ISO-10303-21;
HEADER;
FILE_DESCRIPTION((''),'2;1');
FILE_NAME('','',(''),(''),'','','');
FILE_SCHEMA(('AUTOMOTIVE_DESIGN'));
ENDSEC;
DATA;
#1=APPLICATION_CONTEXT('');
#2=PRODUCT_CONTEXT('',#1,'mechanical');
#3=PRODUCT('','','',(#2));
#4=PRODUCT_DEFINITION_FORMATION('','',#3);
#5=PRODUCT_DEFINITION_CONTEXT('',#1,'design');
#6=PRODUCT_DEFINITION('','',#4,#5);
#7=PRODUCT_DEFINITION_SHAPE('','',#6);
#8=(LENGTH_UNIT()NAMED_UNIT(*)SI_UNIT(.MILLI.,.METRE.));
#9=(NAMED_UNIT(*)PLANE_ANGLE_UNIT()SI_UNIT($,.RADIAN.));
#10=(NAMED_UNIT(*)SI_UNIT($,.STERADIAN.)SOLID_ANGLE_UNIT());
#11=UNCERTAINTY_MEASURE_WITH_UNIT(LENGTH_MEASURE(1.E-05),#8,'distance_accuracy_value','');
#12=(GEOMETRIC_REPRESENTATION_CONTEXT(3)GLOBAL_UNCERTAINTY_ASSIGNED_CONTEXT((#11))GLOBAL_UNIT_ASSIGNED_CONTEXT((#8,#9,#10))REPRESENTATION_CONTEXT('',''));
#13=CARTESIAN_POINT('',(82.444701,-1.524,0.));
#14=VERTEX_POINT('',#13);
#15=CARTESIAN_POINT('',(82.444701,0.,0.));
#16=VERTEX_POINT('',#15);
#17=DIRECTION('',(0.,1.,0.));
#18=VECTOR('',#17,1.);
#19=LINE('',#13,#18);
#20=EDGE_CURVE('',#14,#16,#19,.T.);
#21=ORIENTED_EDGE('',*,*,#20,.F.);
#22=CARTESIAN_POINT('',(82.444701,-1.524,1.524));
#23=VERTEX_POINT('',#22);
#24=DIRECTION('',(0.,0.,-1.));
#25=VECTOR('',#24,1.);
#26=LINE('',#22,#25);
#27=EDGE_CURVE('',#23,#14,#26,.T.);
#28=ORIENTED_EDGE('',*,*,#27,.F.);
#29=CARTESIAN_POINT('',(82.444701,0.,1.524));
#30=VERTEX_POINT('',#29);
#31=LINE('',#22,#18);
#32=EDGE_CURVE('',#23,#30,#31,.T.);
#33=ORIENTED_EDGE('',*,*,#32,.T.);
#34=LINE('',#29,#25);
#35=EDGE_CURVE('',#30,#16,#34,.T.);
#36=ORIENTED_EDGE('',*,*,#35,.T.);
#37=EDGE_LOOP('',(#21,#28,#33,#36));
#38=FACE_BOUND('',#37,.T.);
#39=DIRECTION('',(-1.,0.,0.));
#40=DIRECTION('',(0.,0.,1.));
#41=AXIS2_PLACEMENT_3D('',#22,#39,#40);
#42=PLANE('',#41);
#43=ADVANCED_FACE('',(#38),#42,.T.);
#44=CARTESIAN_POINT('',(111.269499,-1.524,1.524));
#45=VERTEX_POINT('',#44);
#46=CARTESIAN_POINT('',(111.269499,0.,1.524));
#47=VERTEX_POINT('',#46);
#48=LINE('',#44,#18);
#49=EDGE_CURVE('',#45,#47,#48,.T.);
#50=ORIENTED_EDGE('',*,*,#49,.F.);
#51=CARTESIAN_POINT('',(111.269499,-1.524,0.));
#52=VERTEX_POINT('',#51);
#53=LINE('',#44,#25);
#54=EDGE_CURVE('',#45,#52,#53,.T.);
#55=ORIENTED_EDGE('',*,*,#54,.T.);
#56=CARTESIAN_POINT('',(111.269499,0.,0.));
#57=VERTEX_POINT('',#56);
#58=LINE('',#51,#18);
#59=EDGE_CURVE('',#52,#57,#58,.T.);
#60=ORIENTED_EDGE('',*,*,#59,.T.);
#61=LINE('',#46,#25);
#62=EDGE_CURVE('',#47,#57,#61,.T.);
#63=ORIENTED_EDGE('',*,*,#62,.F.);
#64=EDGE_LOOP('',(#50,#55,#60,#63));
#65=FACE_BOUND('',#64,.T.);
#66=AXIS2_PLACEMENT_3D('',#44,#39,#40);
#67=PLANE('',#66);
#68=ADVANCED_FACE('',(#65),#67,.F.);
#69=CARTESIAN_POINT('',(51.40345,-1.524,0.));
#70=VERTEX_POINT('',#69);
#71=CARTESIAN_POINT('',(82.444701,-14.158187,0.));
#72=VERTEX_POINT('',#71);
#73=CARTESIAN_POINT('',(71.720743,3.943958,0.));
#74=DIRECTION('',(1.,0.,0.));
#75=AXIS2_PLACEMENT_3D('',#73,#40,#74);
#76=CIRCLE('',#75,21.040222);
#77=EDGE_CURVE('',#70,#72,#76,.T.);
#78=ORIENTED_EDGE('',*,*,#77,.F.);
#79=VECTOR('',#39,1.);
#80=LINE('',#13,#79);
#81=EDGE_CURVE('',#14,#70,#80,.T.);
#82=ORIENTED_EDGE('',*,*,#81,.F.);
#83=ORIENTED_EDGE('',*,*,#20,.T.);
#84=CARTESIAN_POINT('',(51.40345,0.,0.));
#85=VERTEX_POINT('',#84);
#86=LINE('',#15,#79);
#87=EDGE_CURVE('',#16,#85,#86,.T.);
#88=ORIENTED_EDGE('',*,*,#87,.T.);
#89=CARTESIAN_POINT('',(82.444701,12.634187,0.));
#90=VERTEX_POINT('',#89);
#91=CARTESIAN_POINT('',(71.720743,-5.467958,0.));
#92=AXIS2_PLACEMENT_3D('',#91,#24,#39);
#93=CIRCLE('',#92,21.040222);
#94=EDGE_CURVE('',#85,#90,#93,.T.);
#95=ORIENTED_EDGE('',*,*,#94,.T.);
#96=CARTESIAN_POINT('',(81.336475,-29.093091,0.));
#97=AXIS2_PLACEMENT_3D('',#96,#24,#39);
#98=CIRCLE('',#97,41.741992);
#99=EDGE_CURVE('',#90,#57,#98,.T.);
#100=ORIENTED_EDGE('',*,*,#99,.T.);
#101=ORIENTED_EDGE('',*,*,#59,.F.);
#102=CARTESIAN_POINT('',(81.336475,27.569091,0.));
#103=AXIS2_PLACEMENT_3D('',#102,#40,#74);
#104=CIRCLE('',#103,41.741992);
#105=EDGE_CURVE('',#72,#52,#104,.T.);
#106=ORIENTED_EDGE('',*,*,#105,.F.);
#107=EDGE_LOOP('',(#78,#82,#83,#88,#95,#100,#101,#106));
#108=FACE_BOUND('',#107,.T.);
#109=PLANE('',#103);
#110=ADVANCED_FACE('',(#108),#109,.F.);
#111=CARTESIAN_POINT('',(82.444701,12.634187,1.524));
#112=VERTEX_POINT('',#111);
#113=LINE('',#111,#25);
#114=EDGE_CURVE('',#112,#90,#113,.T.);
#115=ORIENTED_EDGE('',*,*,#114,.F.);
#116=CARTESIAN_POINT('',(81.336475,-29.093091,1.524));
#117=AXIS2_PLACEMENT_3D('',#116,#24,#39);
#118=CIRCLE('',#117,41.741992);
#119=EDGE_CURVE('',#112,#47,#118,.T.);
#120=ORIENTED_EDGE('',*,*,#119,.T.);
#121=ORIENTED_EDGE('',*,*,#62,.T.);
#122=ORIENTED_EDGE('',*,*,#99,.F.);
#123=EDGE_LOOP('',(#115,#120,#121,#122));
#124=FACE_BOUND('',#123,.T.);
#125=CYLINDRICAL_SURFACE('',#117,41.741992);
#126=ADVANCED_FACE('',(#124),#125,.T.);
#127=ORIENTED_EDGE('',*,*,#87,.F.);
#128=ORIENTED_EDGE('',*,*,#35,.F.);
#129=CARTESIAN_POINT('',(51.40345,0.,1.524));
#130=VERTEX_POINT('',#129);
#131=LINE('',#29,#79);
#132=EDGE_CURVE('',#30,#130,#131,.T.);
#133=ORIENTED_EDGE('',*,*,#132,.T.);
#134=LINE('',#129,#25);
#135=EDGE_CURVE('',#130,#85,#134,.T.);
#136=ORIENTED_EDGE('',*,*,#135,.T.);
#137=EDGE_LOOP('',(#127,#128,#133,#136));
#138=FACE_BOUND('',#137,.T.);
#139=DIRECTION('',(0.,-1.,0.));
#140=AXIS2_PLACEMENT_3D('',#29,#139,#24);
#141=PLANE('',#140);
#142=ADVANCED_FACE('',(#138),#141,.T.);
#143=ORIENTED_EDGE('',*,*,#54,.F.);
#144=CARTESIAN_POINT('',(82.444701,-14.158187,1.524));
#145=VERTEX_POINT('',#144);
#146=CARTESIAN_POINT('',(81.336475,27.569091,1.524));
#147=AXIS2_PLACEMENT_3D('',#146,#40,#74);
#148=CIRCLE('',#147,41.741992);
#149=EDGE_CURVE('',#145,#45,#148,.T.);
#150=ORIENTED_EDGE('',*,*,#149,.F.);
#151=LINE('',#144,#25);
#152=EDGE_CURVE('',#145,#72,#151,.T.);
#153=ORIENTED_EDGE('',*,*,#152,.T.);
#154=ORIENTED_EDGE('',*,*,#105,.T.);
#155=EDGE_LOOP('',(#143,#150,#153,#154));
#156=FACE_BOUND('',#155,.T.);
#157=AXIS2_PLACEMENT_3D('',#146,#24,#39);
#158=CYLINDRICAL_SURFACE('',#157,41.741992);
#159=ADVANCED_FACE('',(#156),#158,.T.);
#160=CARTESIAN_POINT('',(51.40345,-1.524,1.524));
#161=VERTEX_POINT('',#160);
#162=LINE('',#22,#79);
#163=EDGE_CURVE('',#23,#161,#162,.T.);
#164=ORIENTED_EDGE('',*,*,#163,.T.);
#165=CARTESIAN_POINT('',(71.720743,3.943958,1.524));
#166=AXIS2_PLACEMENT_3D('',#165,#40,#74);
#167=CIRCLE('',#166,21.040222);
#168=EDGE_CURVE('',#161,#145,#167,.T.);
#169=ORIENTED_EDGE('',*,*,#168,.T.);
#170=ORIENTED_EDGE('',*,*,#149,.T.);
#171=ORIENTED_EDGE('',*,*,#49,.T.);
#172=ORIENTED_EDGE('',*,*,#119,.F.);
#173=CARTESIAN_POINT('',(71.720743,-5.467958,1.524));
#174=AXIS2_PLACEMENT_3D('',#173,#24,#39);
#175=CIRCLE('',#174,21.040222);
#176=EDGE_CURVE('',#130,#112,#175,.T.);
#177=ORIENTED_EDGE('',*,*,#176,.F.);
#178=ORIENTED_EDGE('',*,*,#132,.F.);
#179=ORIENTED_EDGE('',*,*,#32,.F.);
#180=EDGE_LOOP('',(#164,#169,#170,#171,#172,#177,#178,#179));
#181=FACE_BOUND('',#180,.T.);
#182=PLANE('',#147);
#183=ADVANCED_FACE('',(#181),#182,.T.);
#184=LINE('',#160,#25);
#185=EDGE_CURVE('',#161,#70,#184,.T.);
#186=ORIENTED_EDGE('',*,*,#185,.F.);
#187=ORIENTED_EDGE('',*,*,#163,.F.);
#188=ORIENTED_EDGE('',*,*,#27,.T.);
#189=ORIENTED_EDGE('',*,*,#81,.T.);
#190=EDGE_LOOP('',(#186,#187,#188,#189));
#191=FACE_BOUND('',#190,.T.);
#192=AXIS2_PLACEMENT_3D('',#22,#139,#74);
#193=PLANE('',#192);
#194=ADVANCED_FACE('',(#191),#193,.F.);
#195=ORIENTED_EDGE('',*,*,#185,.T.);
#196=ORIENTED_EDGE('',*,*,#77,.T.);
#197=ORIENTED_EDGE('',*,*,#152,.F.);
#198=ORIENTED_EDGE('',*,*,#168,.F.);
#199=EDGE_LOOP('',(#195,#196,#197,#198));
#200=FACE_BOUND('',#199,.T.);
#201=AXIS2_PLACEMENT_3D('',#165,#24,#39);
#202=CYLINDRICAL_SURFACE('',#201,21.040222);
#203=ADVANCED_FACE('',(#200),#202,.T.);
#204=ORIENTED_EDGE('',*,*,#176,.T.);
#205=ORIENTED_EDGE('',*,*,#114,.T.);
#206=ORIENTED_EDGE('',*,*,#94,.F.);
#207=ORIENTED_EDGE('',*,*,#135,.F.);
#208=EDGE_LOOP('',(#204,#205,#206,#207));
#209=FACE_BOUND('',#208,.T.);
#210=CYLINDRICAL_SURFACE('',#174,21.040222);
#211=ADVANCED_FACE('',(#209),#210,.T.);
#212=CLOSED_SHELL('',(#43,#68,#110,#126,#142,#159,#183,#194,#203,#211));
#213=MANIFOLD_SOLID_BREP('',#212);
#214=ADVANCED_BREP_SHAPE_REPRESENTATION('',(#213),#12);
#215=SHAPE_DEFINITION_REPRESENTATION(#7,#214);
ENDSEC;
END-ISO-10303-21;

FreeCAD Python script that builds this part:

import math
import FreeCAD as App
import Part
import Sketcher
from FreeCAD import Vector
Q = App.Units.Quantity

doc = App.newDocument("Part")
body = doc.addObject("PartDesign::Body", "Body")

sketch1 = doc.addObject("Sketcher::SketchObject", "Sketch")
body.addObject(sketch1)
sketch1.AttachmentSupport = (doc.XY_Plane, [""])
sketch1.MapMode = "FlatFace"
sketch1.addGeometry([
    Part.LineSegment(Vector(82.444701, 0, 0), Vector(82.444701, -1.524, 0)),
    Part.LineSegment(Vector(82.444701, -1.524, 0), Vector(51.40345, -1.524, 0)),
    Part.ArcOfCircle(Part.Circle(Vector(71.720743, 3.943958, 0), Vector(0, 0, 1), 21.040222), math.radians(-164.936988), math.radians(-59.356918)),
    Part.ArcOfCircle(Part.Circle(Vector(81.336475, 27.569091, 0), Vector(0, 0, 1), 41.741992), math.radians(-88.47865), math.radians(-44.184744)),
    Part.LineSegment(Vector(111.269499, -1.524, 0), Vector(111.269499, 0, 0)),
    Part.ArcOfCircle(Part.Circle(Vector(81.336475, -29.093091, 0), Vector(0, 0, 1), 41.741992), math.radians(44.184744), math.radians(88.47865)),
    Part.ArcOfCircle(Part.Circle(Vector(71.720743, -5.467958, 0), Vector(0, 0, 1), 21.040222), math.radians(59.356918), math.radians(164.936988)),
    Part.LineSegment(Vector(51.40345, 0, 0), Vector(82.444701, 0, 0)),
], False)
sketch1.addConstraint([
    Sketcher.Constraint("Coincident", 0, 2, 1, 1),
    Sketcher.Constraint("Coincident", 1, 2, 2, 1),
    Sketcher.Constraint("Coincident", 2, 2, 3, 1),
    Sketcher.Constraint("Coincident", 3, 2, 4, 1),
    Sketcher.Constraint("Coincident", 4, 2, 5, 1),
    Sketcher.Constraint("Coincident", 5, 2, 6, 1),
    Sketcher.Constraint("Coincident", 6, 2, 7, 1),
    Sketcher.Constraint("Coincident", 7, 2, 0, 1),
    Sketcher.Constraint("Vertical", 0),
    Sketcher.Constraint("Horizontal", 1),
    Sketcher.Constraint("Vertical", 4),
    Sketcher.Constraint("Horizontal", 7),
    Sketcher.Constraint("Equal", 3, 5),
    Sketcher.Constraint("Equal", 2, 6),
    Sketcher.Constraint("PointOnObject", 4, 2, -1),
    Sketcher.Constraint("PointOnObject", 6, 2, -1),
    Sketcher.Constraint("Horizontal", 1, 2, 3, 2),
    Sketcher.Constraint("Vertical", 3, 3, 5, 3),
    Sketcher.Constraint("Vertical", 2, 3, 6, 3),
    Sketcher.Constraint("Vertical", 0, 2, 2, 2),
    Sketcher.Constraint("Vertical", 2, 2, 5, 2),
    Sketcher.Constraint("DistanceY", 0, 2, 0, 1, Q("0.06 in")),
    Sketcher.Constraint("Radius", 2, Q("21.040222 mm")),
    Sketcher.Constraint("Radius", 3, Q("41.741992 mm")),
    Sketcher.Constraint("DistanceX", 1, 2, 1, 1, Q("31.041251 mm")),
    Sketcher.Constraint("DistanceX", -1, 1, 0, 2, Q("82.444701 mm")),
    Sketcher.Constraint("DistanceX", -1, 1, 3, 2, Q("111.269499 mm")),
    Sketcher.Constraint("DistanceY", -1, 1, 3, 3, Q("27.569091 mm")),
])
pad1 = doc.addObject("PartDesign::Pad", "Pad")
body.addObject(pad1)
pad1.Profile = sketch1
pad1.Length = Q("0.06 in")

doc.recompute()
